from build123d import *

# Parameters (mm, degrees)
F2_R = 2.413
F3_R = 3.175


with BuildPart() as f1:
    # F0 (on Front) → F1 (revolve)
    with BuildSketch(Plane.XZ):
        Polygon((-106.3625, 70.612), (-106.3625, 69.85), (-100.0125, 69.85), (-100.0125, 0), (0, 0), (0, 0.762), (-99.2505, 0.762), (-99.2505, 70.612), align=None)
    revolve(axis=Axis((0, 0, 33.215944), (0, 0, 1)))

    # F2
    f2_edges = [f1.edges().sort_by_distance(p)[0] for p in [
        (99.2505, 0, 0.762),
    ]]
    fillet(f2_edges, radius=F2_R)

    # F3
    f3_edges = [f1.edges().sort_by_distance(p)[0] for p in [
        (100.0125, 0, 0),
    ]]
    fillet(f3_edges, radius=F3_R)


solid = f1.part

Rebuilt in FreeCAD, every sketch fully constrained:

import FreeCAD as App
import Part
import Sketcher
Q = App.Units.Quantity


def edges_at(feature, points):
    """Names of the edges that pass closest to the given points."""
    edges = feature.Shape.Edges
    near = lambda p: min(range(len(edges)), key=lambda i: edges[i].distToShape(Part.Vertex(*p))[0])
    return sorted({f"Edge{near(p) + 1}" for p in points})


def add_polygon(sketch, points):
    """Adds a closed chain of lines whose ends are joined by coincident constraints."""
    first, n = sketch.GeometryCount, len(points)
    for a, b in zip(points, points[1:] + points[:1]):
        sketch.addGeometry(Part.LineSegment(App.Vector(*a, 0), App.Vector(*b, 0)), False)
    for i in range(n):
        sketch.addConstraint(Sketcher.Constraint("Coincident", first + i, 2, first + (i + 1) % n, 1))

doc = App.newDocument("Part")
body = doc.addObject("PartDesign::Body", "Body")

# Sketch on XZ plane
sketch1 = body.newObject("Sketcher::SketchObject", "Sketch")
sketch1.AttachmentSupport = (doc.getObject("XZ_Plane"), [""])
sketch1.MapMode = "FlatFace"
add_polygon(sketch1, [(-106.4, 70.6), (-106.4, 69.8), (-100, 69.8), (-100, 0), (0, 0), (0, 0.8), (-99.3, 0.8), (-99.3, 70.6)])  # lines 0-7
sketch1.addConstraint(Sketcher.Constraint("Vertical", 0))
sketch1.addConstraint(Sketcher.Constraint("Horizontal", 1))
sketch1.addConstraint(Sketcher.Constraint("Vertical", 2))
sketch1.addConstraint(Sketcher.Constraint("Horizontal", 3))
sketch1.addConstraint(Sketcher.Constraint("Vertical", 4))
sketch1.addConstraint(Sketcher.Constraint("Horizontal", 5))
sketch1.addConstraint(Sketcher.Constraint("Vertical", 6))
sketch1.addConstraint(Sketcher.Constraint("Horizontal", 7))
sketch1.addConstraint(Sketcher.Constraint("Coincident", 3, 2, -1, 1))
sketch1.addConstraint(Sketcher.Constraint("Equal", 0, 4))
sketch1.addConstraint(Sketcher.Constraint("DistanceX", 1, 1, 1, 2, Q("0.25 in")))
sketch1.addConstraint(Sketcher.Constraint("DistanceX", 7, 2, 7, 1, Q("0.28 in")))
sketch1.addConstraint(Sketcher.Constraint("DistanceY", 0, 2, 0, 1, Q("0.03 in")))
sketch1.addConstraint(Sketcher.Constraint("DistanceY", 2, 2, 2, 1, Q("2.75 in")))
sketch1.addConstraint(Sketcher.Constraint("DistanceX", 3, 1, 3, 2, Q("3.9375 in")))
revolution = body.newObject("PartDesign::Revolution", "Revolution")
revolution.Profile = sketch1
revolution.ReferenceAxis = (sketch1, ["V_Axis"])
revolution.Angle = 360
doc.recompute()

fillet = body.newObject("PartDesign::Fillet", "Fillet")
fillet.Base = (revolution, edges_at(revolution, [(99.251, 0, 0.762)]))
fillet.Radius = Q("0.095 in")
doc.recompute()

fillet2 = body.newObject("PartDesign::Fillet", "Fillet001")
fillet2.Base = (fillet, edges_at(fillet, [(100.013, 0, 0)]))
fillet2.Radius = Q("0.125 in")

doc.recompute()
